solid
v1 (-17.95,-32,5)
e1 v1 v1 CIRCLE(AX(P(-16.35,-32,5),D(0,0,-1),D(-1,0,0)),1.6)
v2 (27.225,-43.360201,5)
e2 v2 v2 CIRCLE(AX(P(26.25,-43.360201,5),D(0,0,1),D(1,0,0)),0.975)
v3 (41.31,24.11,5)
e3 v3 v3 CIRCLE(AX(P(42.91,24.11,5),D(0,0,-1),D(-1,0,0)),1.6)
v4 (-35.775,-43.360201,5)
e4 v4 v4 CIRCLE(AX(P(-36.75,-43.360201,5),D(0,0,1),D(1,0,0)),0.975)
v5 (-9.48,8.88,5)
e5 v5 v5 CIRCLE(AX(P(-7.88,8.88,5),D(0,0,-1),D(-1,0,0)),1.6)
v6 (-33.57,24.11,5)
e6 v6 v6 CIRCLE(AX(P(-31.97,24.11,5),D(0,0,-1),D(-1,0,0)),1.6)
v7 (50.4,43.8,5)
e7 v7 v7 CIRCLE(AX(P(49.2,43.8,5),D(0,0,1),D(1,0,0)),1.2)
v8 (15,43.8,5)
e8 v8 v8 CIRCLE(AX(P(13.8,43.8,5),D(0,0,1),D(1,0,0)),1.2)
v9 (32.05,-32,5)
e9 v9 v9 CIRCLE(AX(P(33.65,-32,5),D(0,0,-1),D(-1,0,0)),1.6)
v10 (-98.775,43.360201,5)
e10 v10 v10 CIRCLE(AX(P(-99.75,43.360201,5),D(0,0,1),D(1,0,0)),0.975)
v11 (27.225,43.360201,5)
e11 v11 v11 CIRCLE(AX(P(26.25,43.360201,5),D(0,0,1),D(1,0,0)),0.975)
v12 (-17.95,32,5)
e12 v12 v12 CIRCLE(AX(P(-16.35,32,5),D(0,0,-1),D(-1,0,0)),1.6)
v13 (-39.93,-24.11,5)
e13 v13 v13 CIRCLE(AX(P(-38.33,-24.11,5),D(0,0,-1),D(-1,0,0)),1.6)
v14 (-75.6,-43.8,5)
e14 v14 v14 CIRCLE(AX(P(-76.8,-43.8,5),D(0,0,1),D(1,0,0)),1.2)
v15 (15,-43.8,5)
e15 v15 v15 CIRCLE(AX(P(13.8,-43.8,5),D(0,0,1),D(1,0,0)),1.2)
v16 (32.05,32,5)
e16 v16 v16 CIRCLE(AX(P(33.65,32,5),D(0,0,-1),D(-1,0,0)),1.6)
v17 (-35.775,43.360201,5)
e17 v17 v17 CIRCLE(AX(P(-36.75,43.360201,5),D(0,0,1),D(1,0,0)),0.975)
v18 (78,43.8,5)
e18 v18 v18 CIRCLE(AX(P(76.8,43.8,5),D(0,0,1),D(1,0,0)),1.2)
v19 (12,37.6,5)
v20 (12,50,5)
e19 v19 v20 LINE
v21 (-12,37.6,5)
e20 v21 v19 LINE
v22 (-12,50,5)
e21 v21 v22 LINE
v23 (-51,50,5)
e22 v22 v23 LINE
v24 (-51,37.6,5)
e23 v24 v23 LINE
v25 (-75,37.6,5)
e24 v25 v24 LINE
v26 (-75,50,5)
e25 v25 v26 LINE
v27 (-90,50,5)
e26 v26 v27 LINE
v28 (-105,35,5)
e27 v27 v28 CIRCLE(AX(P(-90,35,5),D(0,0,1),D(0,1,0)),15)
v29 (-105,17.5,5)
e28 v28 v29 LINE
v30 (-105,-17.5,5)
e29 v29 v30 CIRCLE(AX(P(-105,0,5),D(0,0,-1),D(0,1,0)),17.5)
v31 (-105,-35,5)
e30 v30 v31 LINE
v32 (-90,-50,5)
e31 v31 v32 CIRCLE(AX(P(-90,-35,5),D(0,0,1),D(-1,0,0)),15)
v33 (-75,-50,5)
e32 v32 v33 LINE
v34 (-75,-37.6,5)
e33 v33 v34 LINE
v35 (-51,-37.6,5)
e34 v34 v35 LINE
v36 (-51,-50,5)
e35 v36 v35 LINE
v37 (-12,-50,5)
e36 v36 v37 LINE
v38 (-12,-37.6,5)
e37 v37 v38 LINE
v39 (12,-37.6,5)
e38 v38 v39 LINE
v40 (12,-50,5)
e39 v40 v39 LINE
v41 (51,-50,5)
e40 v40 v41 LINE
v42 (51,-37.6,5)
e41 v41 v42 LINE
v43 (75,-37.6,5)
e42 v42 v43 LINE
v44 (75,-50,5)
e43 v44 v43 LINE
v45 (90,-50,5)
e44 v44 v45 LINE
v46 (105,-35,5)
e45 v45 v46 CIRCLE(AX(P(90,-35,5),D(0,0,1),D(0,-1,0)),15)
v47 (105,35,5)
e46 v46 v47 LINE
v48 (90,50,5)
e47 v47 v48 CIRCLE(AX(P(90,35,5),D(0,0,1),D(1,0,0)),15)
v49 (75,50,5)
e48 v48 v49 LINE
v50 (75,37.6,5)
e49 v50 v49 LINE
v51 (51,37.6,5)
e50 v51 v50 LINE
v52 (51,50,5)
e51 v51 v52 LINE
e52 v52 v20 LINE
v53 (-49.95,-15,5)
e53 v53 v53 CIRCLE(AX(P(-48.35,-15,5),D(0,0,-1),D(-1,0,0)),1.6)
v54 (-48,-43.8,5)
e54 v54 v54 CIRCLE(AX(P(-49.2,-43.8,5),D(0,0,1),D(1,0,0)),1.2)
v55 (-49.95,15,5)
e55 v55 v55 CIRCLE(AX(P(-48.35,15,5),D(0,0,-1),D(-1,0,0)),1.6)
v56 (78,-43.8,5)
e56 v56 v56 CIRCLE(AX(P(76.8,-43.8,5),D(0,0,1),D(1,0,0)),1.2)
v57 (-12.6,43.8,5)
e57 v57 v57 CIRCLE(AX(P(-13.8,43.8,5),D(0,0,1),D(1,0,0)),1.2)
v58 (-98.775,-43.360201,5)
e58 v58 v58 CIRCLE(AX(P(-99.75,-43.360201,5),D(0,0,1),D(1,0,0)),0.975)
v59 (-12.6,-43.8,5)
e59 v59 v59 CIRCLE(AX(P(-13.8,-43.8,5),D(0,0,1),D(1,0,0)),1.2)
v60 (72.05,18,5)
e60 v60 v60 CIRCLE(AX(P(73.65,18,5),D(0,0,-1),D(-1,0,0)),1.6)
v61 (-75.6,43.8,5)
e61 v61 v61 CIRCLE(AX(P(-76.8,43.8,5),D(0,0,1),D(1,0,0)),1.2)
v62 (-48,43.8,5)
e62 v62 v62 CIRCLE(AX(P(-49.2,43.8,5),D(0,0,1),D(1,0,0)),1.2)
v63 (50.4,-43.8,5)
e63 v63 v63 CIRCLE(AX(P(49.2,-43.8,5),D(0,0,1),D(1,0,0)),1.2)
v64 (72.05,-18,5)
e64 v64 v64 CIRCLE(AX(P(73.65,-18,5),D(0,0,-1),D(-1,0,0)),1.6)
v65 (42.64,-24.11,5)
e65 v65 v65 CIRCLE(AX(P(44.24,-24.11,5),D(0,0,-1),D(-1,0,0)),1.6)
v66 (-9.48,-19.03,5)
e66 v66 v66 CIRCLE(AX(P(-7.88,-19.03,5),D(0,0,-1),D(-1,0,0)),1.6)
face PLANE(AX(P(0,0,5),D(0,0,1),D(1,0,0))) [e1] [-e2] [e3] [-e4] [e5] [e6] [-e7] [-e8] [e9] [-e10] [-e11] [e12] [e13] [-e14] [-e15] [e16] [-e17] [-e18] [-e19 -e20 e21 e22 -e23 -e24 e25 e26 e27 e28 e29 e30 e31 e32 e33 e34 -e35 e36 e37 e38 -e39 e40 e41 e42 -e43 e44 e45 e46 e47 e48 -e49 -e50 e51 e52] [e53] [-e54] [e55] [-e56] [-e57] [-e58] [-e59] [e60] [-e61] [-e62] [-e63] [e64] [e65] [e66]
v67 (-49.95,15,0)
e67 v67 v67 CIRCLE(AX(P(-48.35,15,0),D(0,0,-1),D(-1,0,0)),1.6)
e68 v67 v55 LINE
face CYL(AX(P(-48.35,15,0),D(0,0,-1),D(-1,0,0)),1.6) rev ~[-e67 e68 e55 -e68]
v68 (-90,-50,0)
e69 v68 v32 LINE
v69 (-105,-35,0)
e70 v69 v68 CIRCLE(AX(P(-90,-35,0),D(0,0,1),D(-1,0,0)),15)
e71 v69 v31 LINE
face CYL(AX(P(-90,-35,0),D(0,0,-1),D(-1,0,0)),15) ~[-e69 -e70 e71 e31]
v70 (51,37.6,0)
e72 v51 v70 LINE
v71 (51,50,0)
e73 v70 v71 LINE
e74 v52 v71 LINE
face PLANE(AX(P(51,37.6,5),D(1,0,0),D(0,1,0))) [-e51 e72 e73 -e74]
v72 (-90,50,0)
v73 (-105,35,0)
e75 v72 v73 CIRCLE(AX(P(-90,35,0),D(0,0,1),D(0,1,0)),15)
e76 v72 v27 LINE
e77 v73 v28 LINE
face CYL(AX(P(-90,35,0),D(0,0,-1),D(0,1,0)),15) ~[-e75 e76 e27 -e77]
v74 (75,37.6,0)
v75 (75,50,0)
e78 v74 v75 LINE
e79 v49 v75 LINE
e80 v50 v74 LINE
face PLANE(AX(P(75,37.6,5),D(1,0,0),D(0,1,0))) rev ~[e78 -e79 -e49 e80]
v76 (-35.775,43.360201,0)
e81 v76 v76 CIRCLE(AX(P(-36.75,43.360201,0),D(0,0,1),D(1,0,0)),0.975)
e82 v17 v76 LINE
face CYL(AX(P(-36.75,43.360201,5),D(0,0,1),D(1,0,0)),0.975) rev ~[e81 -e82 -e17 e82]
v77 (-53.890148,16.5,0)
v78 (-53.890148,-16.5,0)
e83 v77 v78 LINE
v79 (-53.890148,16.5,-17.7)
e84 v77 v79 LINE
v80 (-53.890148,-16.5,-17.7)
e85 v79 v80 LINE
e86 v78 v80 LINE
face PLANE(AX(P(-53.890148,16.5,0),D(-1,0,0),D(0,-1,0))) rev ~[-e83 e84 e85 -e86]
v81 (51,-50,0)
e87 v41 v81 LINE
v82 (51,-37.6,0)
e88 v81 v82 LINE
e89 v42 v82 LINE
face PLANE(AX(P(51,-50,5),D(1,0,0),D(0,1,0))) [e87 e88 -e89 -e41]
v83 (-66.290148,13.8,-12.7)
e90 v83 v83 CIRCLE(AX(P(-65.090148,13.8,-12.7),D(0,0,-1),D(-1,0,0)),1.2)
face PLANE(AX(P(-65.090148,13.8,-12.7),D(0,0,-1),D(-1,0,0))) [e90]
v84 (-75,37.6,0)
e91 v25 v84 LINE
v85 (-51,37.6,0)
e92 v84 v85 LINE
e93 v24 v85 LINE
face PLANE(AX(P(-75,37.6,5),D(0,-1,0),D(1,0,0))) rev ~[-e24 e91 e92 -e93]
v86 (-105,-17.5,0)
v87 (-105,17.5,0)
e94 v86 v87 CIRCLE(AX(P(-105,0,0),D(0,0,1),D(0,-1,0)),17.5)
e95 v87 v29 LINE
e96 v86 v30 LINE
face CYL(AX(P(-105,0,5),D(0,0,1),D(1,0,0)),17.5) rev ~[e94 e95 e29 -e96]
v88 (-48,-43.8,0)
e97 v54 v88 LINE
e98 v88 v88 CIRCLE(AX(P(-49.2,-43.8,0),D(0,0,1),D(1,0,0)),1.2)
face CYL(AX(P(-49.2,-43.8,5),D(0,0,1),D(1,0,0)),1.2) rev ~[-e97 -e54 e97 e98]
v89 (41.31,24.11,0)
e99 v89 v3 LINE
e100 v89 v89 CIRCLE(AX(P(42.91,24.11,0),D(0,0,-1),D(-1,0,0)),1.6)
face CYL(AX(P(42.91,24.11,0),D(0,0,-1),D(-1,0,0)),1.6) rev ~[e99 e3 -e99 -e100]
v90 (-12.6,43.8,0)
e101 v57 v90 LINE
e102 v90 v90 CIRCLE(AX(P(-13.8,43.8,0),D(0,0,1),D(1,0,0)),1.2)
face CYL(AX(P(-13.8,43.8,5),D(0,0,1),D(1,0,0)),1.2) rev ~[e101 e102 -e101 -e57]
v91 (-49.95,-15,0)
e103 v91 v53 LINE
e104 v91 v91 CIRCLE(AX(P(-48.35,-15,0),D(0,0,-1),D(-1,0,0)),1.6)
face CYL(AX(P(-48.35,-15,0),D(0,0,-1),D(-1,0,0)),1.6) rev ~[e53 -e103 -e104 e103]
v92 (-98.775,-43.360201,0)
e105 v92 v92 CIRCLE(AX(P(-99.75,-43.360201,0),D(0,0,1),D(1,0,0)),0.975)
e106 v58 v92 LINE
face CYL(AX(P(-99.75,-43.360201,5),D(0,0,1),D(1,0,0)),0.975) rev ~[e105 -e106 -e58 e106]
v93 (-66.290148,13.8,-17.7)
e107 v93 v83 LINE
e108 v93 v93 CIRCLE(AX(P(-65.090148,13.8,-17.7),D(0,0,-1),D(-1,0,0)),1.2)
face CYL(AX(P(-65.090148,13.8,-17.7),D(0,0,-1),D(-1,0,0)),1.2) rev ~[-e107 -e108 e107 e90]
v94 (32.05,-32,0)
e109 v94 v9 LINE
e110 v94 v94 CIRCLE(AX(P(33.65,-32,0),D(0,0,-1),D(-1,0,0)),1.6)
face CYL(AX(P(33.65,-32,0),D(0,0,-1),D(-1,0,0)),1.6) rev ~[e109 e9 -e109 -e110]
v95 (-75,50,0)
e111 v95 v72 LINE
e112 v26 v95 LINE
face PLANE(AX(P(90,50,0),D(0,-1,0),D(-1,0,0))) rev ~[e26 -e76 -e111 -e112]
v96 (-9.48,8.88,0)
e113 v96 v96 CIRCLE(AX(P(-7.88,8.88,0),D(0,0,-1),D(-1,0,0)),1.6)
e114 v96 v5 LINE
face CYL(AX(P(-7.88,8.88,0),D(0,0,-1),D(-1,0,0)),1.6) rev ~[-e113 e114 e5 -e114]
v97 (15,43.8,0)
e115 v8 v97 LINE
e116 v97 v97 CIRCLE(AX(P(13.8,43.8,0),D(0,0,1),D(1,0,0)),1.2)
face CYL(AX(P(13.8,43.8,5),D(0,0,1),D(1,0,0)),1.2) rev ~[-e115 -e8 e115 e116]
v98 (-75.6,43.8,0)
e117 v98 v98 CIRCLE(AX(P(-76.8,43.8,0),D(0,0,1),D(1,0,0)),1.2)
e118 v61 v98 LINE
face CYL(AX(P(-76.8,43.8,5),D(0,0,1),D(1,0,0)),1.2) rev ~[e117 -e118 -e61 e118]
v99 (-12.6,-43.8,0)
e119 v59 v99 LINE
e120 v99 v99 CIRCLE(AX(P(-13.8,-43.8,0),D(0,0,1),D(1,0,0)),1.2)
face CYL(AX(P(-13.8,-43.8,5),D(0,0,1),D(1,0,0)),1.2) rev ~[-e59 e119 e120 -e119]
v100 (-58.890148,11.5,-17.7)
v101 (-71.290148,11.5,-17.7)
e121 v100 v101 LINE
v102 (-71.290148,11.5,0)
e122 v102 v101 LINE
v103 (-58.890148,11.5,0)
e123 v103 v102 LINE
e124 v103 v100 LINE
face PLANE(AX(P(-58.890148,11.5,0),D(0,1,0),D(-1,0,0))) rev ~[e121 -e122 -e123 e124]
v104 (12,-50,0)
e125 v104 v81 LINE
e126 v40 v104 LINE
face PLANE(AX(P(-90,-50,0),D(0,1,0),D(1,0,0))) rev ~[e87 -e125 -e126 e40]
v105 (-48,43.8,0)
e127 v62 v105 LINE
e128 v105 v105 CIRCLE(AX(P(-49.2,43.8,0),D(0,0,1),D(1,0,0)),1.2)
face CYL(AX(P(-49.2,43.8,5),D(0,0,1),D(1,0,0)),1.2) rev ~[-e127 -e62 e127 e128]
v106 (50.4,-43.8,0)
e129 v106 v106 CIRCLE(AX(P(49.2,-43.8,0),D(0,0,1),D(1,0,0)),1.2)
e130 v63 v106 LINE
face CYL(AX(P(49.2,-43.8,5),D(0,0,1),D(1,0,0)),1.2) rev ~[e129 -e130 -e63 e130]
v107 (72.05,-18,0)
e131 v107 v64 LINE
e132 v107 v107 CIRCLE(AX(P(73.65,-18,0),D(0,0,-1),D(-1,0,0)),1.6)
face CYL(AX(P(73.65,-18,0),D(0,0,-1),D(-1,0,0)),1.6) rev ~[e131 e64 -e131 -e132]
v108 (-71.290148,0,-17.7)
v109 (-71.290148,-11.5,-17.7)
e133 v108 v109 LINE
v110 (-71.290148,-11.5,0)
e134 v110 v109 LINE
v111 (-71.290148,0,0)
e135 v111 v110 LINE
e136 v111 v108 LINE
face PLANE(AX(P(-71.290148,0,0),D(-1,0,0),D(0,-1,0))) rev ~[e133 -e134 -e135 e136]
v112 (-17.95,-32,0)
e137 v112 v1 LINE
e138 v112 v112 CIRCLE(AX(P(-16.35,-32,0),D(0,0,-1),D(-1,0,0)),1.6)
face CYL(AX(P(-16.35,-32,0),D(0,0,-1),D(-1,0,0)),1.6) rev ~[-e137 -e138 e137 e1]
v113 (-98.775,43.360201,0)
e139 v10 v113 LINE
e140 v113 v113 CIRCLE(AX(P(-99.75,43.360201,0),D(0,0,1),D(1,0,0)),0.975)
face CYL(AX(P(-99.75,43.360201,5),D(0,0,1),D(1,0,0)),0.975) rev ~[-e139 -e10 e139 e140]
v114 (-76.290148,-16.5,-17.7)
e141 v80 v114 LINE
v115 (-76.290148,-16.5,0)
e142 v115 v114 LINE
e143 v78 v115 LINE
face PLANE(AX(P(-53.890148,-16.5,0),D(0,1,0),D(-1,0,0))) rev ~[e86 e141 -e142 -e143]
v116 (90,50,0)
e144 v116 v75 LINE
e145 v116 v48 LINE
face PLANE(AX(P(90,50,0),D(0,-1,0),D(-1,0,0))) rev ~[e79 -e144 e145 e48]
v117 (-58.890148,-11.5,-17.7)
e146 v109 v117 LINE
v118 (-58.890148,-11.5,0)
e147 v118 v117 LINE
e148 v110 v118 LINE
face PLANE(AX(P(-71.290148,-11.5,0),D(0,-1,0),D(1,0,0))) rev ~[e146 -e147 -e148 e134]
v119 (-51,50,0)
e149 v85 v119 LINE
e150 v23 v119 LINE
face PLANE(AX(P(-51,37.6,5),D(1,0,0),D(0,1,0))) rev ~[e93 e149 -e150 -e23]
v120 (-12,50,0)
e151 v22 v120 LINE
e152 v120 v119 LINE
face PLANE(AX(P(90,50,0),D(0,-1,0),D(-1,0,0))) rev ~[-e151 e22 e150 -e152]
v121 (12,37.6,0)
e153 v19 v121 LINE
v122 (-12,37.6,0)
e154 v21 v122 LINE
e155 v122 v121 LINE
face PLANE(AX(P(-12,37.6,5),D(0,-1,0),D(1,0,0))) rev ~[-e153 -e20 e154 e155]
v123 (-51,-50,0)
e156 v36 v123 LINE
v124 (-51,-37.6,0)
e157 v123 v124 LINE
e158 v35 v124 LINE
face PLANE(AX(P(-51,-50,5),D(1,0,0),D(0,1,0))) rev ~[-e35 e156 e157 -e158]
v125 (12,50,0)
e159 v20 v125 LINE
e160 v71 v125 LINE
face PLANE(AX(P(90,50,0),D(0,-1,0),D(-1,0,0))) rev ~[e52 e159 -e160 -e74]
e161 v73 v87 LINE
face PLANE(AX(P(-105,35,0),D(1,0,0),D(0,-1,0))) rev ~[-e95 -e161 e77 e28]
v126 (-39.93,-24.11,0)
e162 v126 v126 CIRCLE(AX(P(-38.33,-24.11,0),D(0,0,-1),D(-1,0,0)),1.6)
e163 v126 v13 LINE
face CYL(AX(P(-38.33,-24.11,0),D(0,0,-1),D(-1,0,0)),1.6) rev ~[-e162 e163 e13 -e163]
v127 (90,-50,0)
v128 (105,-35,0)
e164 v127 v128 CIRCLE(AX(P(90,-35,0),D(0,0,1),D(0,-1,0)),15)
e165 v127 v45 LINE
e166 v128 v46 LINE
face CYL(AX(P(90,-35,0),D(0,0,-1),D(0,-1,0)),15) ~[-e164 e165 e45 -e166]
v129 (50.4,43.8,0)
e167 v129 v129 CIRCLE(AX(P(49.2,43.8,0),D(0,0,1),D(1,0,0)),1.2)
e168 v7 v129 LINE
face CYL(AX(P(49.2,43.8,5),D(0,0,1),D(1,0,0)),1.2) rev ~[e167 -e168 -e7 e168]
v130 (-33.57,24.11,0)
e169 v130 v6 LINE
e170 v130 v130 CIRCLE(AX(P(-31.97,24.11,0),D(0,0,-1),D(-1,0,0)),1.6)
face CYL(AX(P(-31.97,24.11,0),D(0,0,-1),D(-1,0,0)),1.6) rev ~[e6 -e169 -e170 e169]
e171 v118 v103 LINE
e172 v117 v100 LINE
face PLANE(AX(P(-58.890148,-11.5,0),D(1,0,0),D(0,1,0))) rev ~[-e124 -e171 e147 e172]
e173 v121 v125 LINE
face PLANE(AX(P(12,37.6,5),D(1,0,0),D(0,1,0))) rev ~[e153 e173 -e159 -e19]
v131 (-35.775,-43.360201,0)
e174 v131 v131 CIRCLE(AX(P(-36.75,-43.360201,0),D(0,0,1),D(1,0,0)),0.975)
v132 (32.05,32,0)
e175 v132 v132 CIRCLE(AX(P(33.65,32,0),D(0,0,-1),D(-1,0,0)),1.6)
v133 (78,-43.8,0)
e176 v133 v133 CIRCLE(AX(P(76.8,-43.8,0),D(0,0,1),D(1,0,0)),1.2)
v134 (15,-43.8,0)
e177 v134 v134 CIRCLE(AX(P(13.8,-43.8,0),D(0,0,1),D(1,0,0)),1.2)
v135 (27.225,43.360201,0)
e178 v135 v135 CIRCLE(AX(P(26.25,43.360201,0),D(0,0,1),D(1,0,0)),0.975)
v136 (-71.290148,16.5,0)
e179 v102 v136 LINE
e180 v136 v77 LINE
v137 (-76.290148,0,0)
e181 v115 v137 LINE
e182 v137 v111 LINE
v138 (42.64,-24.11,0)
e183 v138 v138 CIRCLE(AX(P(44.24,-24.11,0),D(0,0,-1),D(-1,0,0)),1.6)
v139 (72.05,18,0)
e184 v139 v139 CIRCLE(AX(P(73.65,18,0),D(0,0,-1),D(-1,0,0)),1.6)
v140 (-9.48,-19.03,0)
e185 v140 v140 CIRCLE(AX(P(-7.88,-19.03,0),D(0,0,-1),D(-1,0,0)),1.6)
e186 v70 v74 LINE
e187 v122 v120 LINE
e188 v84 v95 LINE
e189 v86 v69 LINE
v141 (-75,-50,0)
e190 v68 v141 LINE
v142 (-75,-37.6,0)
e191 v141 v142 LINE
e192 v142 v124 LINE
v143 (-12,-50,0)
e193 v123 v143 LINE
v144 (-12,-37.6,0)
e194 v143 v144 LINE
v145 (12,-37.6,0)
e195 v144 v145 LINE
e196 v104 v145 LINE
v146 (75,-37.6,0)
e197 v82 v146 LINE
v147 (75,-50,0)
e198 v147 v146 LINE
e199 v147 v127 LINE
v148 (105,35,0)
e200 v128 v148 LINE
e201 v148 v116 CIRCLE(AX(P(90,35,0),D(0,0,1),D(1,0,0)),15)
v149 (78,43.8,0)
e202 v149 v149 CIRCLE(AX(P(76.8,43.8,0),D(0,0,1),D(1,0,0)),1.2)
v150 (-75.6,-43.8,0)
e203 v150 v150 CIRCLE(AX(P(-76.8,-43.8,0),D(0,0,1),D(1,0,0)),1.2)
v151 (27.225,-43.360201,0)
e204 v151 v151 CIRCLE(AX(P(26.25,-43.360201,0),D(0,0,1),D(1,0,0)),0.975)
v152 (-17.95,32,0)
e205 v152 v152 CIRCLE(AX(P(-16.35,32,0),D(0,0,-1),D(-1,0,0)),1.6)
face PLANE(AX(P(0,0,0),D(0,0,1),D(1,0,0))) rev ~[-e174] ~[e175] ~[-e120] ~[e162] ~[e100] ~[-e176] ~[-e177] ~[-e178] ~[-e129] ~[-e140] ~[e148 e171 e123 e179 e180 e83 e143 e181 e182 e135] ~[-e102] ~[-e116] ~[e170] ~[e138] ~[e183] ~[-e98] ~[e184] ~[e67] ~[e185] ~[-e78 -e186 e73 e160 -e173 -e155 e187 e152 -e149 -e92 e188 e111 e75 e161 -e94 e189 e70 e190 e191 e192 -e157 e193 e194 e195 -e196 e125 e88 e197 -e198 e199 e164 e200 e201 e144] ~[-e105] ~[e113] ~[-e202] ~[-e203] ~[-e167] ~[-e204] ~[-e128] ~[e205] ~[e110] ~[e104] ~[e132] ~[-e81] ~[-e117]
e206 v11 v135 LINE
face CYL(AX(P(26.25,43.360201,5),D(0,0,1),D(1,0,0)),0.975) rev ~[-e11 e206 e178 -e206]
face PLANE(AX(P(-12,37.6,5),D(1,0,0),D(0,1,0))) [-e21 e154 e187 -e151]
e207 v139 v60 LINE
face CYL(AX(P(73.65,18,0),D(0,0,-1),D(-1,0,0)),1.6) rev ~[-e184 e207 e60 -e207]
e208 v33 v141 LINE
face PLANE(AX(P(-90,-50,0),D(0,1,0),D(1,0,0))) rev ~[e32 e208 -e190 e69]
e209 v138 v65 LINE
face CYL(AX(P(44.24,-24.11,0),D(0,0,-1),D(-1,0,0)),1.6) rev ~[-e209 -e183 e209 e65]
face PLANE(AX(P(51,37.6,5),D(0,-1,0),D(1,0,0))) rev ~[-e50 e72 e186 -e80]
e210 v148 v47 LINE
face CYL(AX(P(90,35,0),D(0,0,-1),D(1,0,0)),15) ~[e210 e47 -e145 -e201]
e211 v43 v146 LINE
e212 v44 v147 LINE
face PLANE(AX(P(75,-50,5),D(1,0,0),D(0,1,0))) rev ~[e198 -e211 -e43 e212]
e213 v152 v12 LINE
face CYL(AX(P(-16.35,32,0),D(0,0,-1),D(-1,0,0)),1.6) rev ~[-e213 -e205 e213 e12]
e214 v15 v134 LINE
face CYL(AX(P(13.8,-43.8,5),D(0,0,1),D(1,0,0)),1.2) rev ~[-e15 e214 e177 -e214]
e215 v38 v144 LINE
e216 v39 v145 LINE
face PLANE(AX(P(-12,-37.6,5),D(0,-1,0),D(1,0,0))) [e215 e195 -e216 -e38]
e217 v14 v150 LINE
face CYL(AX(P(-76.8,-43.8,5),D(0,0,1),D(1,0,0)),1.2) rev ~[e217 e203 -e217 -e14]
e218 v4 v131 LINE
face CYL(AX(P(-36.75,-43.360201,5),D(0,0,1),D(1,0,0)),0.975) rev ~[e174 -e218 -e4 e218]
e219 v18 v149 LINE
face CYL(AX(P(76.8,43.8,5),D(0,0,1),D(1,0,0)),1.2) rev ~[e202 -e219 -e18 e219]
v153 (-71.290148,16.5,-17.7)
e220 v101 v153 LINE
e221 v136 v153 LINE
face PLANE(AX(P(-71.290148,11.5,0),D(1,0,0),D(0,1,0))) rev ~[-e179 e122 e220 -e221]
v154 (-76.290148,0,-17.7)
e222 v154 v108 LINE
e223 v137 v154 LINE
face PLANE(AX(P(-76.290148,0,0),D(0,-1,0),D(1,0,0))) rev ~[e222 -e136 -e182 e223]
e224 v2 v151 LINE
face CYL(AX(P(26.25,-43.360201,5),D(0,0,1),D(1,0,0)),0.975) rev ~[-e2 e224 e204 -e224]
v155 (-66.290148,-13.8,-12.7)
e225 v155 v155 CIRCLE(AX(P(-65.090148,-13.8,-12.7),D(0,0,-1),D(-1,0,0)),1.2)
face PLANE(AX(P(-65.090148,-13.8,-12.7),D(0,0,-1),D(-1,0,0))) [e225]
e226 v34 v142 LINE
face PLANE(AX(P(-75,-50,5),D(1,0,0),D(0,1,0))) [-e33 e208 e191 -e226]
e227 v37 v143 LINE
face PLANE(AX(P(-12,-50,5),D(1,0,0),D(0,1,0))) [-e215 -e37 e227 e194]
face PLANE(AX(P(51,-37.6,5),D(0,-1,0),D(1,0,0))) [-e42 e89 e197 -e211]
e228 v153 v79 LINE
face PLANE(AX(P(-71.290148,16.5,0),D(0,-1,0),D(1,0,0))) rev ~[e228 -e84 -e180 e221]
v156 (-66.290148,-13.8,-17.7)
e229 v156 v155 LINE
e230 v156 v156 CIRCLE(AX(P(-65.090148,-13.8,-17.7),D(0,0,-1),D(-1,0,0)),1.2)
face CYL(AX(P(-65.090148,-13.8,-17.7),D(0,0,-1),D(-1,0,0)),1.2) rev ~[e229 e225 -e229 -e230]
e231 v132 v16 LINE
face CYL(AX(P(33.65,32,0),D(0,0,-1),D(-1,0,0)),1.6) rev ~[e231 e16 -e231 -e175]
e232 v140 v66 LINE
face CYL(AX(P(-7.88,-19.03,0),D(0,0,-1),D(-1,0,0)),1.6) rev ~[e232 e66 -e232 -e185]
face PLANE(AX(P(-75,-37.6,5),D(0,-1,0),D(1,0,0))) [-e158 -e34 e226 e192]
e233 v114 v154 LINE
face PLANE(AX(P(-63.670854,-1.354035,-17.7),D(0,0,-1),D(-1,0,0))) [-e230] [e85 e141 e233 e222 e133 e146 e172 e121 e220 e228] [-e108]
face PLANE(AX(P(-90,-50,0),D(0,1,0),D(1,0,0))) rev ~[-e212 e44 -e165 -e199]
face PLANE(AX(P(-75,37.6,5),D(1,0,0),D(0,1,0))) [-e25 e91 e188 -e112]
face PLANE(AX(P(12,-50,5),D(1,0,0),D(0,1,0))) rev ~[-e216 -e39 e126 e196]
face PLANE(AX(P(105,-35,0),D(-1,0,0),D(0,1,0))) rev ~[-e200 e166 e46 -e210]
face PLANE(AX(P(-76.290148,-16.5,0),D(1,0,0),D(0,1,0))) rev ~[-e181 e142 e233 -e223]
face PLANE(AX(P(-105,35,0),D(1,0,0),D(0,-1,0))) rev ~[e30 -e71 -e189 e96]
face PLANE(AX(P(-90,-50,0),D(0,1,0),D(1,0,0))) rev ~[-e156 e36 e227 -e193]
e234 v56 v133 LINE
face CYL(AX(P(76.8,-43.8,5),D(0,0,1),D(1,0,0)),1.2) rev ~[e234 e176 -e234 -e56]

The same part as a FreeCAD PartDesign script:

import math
import FreeCAD as App
import Part
import Sketcher

doc = App.newDocument("Part")
params = doc.addObject("Spreadsheet::Sheet", "Params")
for row, (alias, value) in enumerate([
    ("sketch1_radius", "15 mm"),
    ("sketch1_width", "180 mm"),
    ("sketch1_height", "70 mm"),
    ("pad1_length", "5 mm"),
    ("sketch2_width", "24 mm"),
    ("sketch2_height", "12.4 mm"),
    ("pocket1_length", "5 mm"),
    ("sketch3_diameter", "2.4 mm"),
    ("pocket2_length", "5 mm"),
    ("sketch4_diameter", "1.95 mm"),
    ("pocket3_length", "10 mm"),
    ("sketch5_diameter", "35 mm"),
    ("pocket4_length", "10 mm"),
    ("sketch6_diameter", "3.2 mm"),
    ("pocket5_length", "10 mm"),
    ("sketch7_width", "5 mm"),
    ("sketch7_height", "23 mm"),
    ("sketch7_height2", "33 mm"),
    ("sketch7_width2", "12.4 mm"),
    ("sketch7_width3", "17.4 mm"),
    ("pad2_length", "17.7 mm"),
    ("sketch8_diameter", "2.4 mm"),
    ("pocket6_length", "5 mm"),
], start=1):
    params.set(f"A{row}", alias)
    params.set(f"B{row}", "=" + value)
    params.setAlias(f"B{row}", alias)

body = doc.addObject("PartDesign::Body", "Body")

# Sketch on XY plane
sketch1 = body.newObject("Sketcher::SketchObject", "Sketch")
sketch1.AttachmentSupport = (doc.getObject("XY_Plane"), [""])
sketch1.MapMode = "FlatFace"
sketch1.addGeometry([
    Part.LineSegment(App.Vector(-90, -50, 0), App.Vector(90, -50, 0)),  # 0
    Part.ArcOfCircle(Part.Circle(App.Vector(90, -35, 0), App.Vector(0, 0, 1), 15), math.radians(-90), math.radians(0)),  # 1
    Part.LineSegment(App.Vector(105, -35, 0), App.Vector(105, 35, 0)),  # 2
    Part.ArcOfCircle(Part.Circle(App.Vector(90, 35, 0), App.Vector(0, 0, 1), 15), math.radians(0), math.radians(90)),  # 3
    Part.LineSegment(App.Vector(90, 50, 0), App.Vector(-90, 50, 0)),  # 4
    Part.ArcOfCircle(Part.Circle(App.Vector(-90, 35, 0), App.Vector(0, 0, 1), 15), math.radians(90), math.radians(180)),  # 5
    Part.LineSegment(App.Vector(-105, 35, 0), App.Vector(-105, -35, 0)),  # 6
    Part.ArcOfCircle(Part.Circle(App.Vector(-90, -35, 0), App.Vector(0, 0, 1), 15), math.radians(180), math.radians(270)),  # 7
], False)
sketch1.addConstraint([
    Sketcher.Constraint("Tangent", 0, 2, 1, 1),
    Sketcher.Constraint("Tangent", 1, 2, 2, 1),
    Sketcher.Constraint("Tangent", 2, 2, 3, 1),
    Sketcher.Constraint("Tangent", 3, 2, 4, 1),
    Sketcher.Constraint("Tangent", 4, 2, 5, 1),
    Sketcher.Constraint("Tangent", 5, 2, 6, 1),
    Sketcher.Constraint("Tangent", 6, 2, 7, 1),
    Sketcher.Constraint("Tangent", 7, 2, 0, 1),
    Sketcher.Constraint("Horizontal", 0),
    Sketcher.Constraint("Vertical", 2),
    Sketcher.Constraint("Horizontal", 4),
    Sketcher.Constraint("Vertical", 6),
    Sketcher.Constraint("Equal", 1, 3),
    Sketcher.Constraint("Equal", 3, 5),
    Sketcher.Constraint("Equal", 5, 7),
    Sketcher.Constraint("Symmetric", 1, 3, 5, 3, -1, 1),
    Sketcher.Constraint("Radius", 1, 15.0),
    Sketcher.Constraint("DistanceX", 0, 1, 0, 2, 180.0),
    Sketcher.Constraint("DistanceY", 2, 1, 2, 2, 70.0),
])
sketch1.setExpression("Constraints[16]", "Params.sketch1_radius")
sketch1.setExpression("Constraints[17]", "Params.sketch1_width")
sketch1.setExpression("Constraints[18]", "Params.sketch1_height")
pad1 = body.newObject("PartDesign::Pad", "Pad")
pad1.Profile = sketch1
pad1.setExpression("Length", "Params.pad1_length")

# Sketch on XY plane
sketch2 = body.newObject("Sketcher::SketchObject", "Sketch001")
sketch2.AttachmentSupport = (doc.getObject("XY_Plane"), [""])
sketch2.MapMode = "FlatFace"
sketch2.AttachmentOffset = App.Placement(App.Vector(0, 0, 5), App.Rotation())
sketch2.addGeometry([
    Part.LineSegment(App.Vector(51, -38, 0), App.Vector(51, -50, 0)),  # 0
    Part.LineSegment(App.Vector(51, -50, 0), App.Vector(75, -50, 0)),  # 1
    Part.LineSegment(App.Vector(75, -50, 0), App.Vector(75, -38, 0)),  # 2
    Part.LineSegment(App.Vector(75, -38, 0), App.Vector(51, -38, 0)),  # 3
    Part.LineSegment(App.Vector(-75, 50, 0), App.Vector(-75, 38, 0)),  # 4
    Part.LineSegment(App.Vector(-75, 38, 0), App.Vector(-51, 38, 0)),  # 5
    Part.LineSegment(App.Vector(-51, 38, 0), App.Vector(-51, 50, 0)),  # 6
    Part.LineSegment(App.Vector(-51, 50, 0), App.Vector(-75, 50, 0)),  # 7
    Part.LineSegment(App.Vector(-12, 50, 0), App.Vector(-12, 38, 0)),  # 8
    Part.LineSegment(App.Vector(-12, 38, 0), App.Vector(12, 38, 0)),  # 9
    Part.LineSegment(App.Vector(12, 38, 0), App.Vector(12, 50, 0)),  # 10
    Part.LineSegment(App.Vector(12, 50, 0), App.Vector(-12, 50, 0)),  # 11
    Part.LineSegment(App.Vector(51, 50, 0), App.Vector(51, 38, 0)),  # 12
    Part.LineSegment(App.Vector(51, 38, 0), App.Vector(75, 38, 0)),  # 13
    Part.LineSegment(App.Vector(75, 38, 0), App.Vector(75, 50, 0)),  # 14
    Part.LineSegment(App.Vector(75, 50, 0), App.Vector(51, 50, 0)),  # 15
    Part.LineSegment(App.Vector(-12, -38, 0), App.Vector(-12, -50, 0)),  # 16
    Part.LineSegment(App.Vector(-12, -50, 0), App.Vector(12, -50, 0)),  # 17
    Part.LineSegment(App.Vector(12, -50, 0), App.Vector(12, -38, 0)),  # 18
    Part.LineSegment(App.Vector(12, -38, 0), App.Vector(-12, -38, 0)),  # 19
    Part.LineSegment(App.Vector(-75, -38, 0), App.Vector(-75, -50, 0)),  # 20
    Part.LineSegment(App.Vector(-75, -50, 0), App.Vector(-51, -50, 0)),  # 21
    Part.LineSegment(App.Vector(-51, -50, 0), App.Vector(-51, -38, 0)),  # 22
    Part.LineSegment(App.Vector(-51, -38, 0), App.Vector(-75, -38, 0)),  # 23
], False)
sketch2.addConstraint([
    Sketcher.Constraint("Coincident", 0, 2, 1, 1),
    Sketcher.Constraint("Coincident", 1, 2, 2, 1),
    Sketcher.Constraint("Coincident", 2, 2, 3, 1),
    Sketcher.Constraint("Coincident", 3, 2, 0, 1),
    Sketcher.Constraint("Coincident", 4, 2, 5, 1),
    Sketcher.Constraint("Coincident", 5, 2, 6, 1),
    Sketcher.Constraint("Coincident", 6, 2, 7, 1),
    Sketcher.Constraint("Coincident", 7, 2, 4, 1),
    Sketcher.Constraint("Coincident", 8, 2, 9, 1),
    Sketcher.Constraint("Coincident", 9, 2, 10, 1),
    Sketcher.Constraint("Coincident", 10, 2, 11, 1),
    Sketcher.Constraint("Coincident", 11, 2, 8, 1),
    Sketcher.Constraint("Coincident", 12, 2, 13, 1),
    Sketcher.Constraint("Coincident", 13, 2, 14, 1),
    Sketcher.Constraint("Coincident", 14, 2, 15, 1),
    Sketcher.Constraint("Coincident", 15, 2, 12, 1),
    Sketcher.Constraint("Coincident", 16, 2, 17, 1),
    Sketcher.Constraint("Coincident", 17, 2, 18, 1),
    Sketcher.Constraint("Coincident", 18, 2, 19, 1),
    Sketcher.Constraint("Coincident", 19, 2, 16, 1),
    Sketcher.Constraint("Coincident", 20, 2, 21, 1),
    Sketcher.Constraint("Coincident", 21, 2, 22, 1),
    Sketcher.Constraint("Coincident", 22, 2, 23, 1),
    Sketcher.Constraint("Coincident", 23, 2, 20, 1),
    Sketcher.Constraint("Vertical", 0),
    Sketcher.Constraint("Horizontal", 1),
    Sketcher.Constraint("Vertical", 2),
    Sketcher.Constraint("Horizontal", 3),
    Sketcher.Constraint("Vertical", 4),
    Sketcher.Constraint("Horizontal", 5),
    Sketcher.Constraint("Vertical", 6),
    Sketcher.Constraint("Horizontal", 7),
    Sketcher.Constraint("Vertical", 8),
    Sketcher.Constraint("Horizontal", 9),
    Sketcher.Constraint("Vertical", 10),
    Sketcher.Constraint("Horizontal", 11),
    Sketcher.Constraint("Vertical", 12),
    Sketcher.Constraint("Horizontal", 13),
    Sketcher.Constraint("Vertical", 14),
    Sketcher.Constraint("Horizontal", 15),
    Sketcher.Constraint("Vertical", 16),
    Sketcher.Constraint("Horizontal", 17),
    Sketcher.Constraint("Vertical", 18),
    Sketcher.Constraint("Horizontal", 19),
    Sketcher.Constraint("Vertical", 20),
    Sketcher.Constraint("Horizontal", 21),
    Sketcher.Constraint("Vertical", 22),
    Sketcher.Constraint("Horizontal", 23),
    Sketcher.Constraint("Symmetric", 2, 2, 4, 2, -1, 1),
    Sketcher.Constraint("Symmetric", 0, 2, 6, 2, -1, 1),
    Sketcher.Constraint("Symmetric", 10, 2, 16, 2, -1, 1),
    Sketcher.Constraint("Symmetric", 8, 2, 18, 2, -1, 1),
    Sketcher.Constraint("Symmetric", 14, 2, 20, 2, -1, 1),
    Sketcher.Constraint("Symmetric", 12, 2, 22, 2, -1, 1),
    Sketcher.Constraint("Symmetric", 5, 2, 12, 2, -2),
    Sketcher.Constraint("Symmetric", 7, 2, 14, 2, -2),
    Sketcher.Constraint("Horizontal", 5, 2, 8, 2),
    Sketcher.Constraint("Horizontal", 7, 2, 10, 2),
    Sketcher.Constraint("Vertical", 11, 2, 16, 2),
    Sketcher.Constraint("Equal", 7, 9),
    Sketcher.Constraint("DistanceX", 1, 1, 1, 2, 24.0),
    Sketcher.Constraint("DistanceY", 0, 2, 0, 1, 12.4),
    Sketcher.Constraint("DistanceX", -1, 1, 0, 2, 51.0),
    Sketcher.Constraint("DistanceY", 0, 2, -1, 1, 50.0),
])
sketch2.setExpression("Constraints[60]", "Params.sketch2_width")
sketch2.setExpression("Constraints[61]", "Params.sketch2_height")
pocket1 = body.newObject("PartDesign::Pocket", "Pocket")
pocket1.Profile = sketch2
pocket1.setExpression("Length", "Params.pocket1_length")

# Sketch on XY plane
sketch3 = body.newObject("Sketcher::SketchObject", "Sketch002")
sketch3.AttachmentSupport = (doc.getObject("XY_Plane"), [""])
sketch3.MapMode = "FlatFace"
sketch3.AttachmentOffset = App.Placement(App.Vector(0, 0, 5), App.Rotation())
sketch3.addGeometry([
    Part.Circle(App.Vector(-76.8, 43.8, 0), App.Vector(0, 0, 1), 1.2),  # 0
    Part.Circle(App.Vector(-49.2, 43.8, 0), App.Vector(0, 0, 1), 1.2),  # 1
    Part.Circle(App.Vector(-13.8, 43.8, 0), App.Vector(0, 0, 1), 1.2),  # 2
    Part.Circle(App.Vector(13.8, 43.8, 0), App.Vector(0, 0, 1), 1.2),  # 3
    Part.Circle(App.Vector(49.2, 43.8, 0), App.Vector(0, 0, 1), 1.2),  # 4
    Part.Circle(App.Vector(76.8, 43.8, 0), App.Vector(0, 0, 1), 1.2),  # 5
    Part.Circle(App.Vector(-76.8, -43.8, 0), App.Vector(0, 0, 1), 1.2),  # 6
    Part.Circle(App.Vector(-49.2, -43.8, 0), App.Vector(0, 0, 1), 1.2),  # 7
    Part.Circle(App.Vector(-13.8, -43.8, 0), App.Vector(0, 0, 1), 1.2),  # 8
    Part.Circle(App.Vector(13.8, -43.8, 0), App.Vector(0, 0, 1), 1.2),  # 9
    Part.Circle(App.Vector(49.2, -43.8, 0), App.Vector(0, 0, 1), 1.2),  # 10
    Part.Circle(App.Vector(76.8, -43.8, 0), App.Vector(0, 0, 1), 1.2),  # 11
], False)
sketch3.addConstraint([
    Sketcher.Constraint("Equal", 0, 1),
    Sketcher.Constraint("Equal", 1, 2),
    Sketcher.Constraint("Equal", 2, 3),
    Sketcher.Constraint("Equal", 3, 4),
    Sketcher.Constraint("Equal", 4, 5),
    Sketcher.Constraint("Equal", 5, 6),
    Sketcher.Constraint("Equal", 6, 7),
    Sketcher.Constraint("Equal", 7, 8),
    Sketcher.Constraint("Equal", 8, 9),
    Sketcher.Constraint("Equal", 9, 10),
    Sketcher.Constraint("Equal", 10, 11),
    Sketcher.Constraint("Symmetric", 5, 3, 6, 3, -1, 1),
    Sketcher.Constraint("Symmetric", 4, 3, 7, 3, -1, 1),
    Sketcher.Constraint("Symmetric", 3, 3, 8, 3, -1, 1),
    Sketcher.Constraint("Symmetric", 2, 3, 9, 3, -1, 1),
    Sketcher.Constraint("Symmetric", 1, 3, 10, 3, -1, 1),
    Sketcher.Constraint("Symmetric", 0, 3, 11, 3, -1, 1),
    Sketcher.Constraint("Symmetric", 2, 3, 3, 3, -2),
    Sketcher.Constraint("Symmetric", 1, 3, 4, 3, -2),
    Sketcher.Constraint("Symmetric", 0, 3, 5, 3, -2),
    Sketcher.Constraint("Horizontal", 0, 3, 1, 3),
    Sketcher.Constraint("Horizontal", 1, 3, 2, 3),
    Sketcher.Constraint("Diameter", 0, 2.4),
    Sketcher.Constraint("DistanceX", 0, 3, 2, 3, 63.0),
    Sketcher.Constraint("DistanceX", 1, 3, 3, 3, 63.0),
    Sketcher.Constraint("DistanceX", 0, 3, -1, 1, 76.8),
    Sketcher.Constraint("DistanceY", -1, 1, 0, 3, 43.8),
])
sketch3.setExpression("Constraints[22]", "Params.sketch3_diameter")
pocket2 = body.newObject("PartDesign::Pocket", "Pocket001")
pocket2.Profile = sketch3
pocket2.setExpression("Length", "Params.pocket2_length")

# Sketch on XY plane
sketch4 = body.newObject("Sketcher::SketchObject", "Sketch003")
sketch4.AttachmentSupport = (doc.getObject("XY_Plane"), [""])
sketch4.MapMode = "FlatFace"
sketch4.AttachmentOffset = App.Placement(App.Vector(0, 0, 5), App.Rotation())
sketch4.addGeometry([
    Part.Circle(App.Vector(-36.8, 43.4, 0), App.Vector(0, 0, 1), 1),  # 0
    Part.Circle(App.Vector(26.2, 43.4, 0), App.Vector(0, 0, 1), 1),  # 1
    Part.Circle(App.Vector(26.2, -43.4, 0), App.Vector(0, 0, 1), 1),  # 2
    Part.Circle(App.Vector(-36.8, -43.4, 0), App.Vector(0, 0, 1), 1),  # 3
    Part.Circle(App.Vector(-99.8, 43.4, 0), App.Vector(0, 0, 1), 1),  # 4
    Part.Circle(App.Vector(-99.8, -43.4, 0), App.Vector(0, 0, 1), 1),  # 5
], False)
sketch4.addConstraint([
    Sketcher.Constraint("Equal", 0, 1),
    Sketcher.Constraint("Equal", 1, 2),
    Sketcher.Constraint("Equal", 2, 3),
    Sketcher.Constraint("Equal", 3, 4),
    Sketcher.Constraint("Equal", 4, 5),
    Sketcher.Constraint("Symmetric", 1, 3, 2, 3, -1),
    Sketcher.Constraint("Symmetric", 0, 3, 3, 3, -1),
    Sketcher.Constraint("Symmetric", 4, 3, 5, 3, -1),
    Sketcher.Constraint("Horizontal", 0, 3, 1, 3),
    Sketcher.Constraint("Horizontal", 1, 3, 4, 3),
    Sketcher.Constraint("Diameter", 0, 1.95),
    Sketcher.Constraint("DistanceX", 0, 3, 1, 3, 63.0),
    Sketcher.Constraint("DistanceX", 4, 3, 0, 3, 63.0),
    Sketcher.Constraint("DistanceX", 0, 3, -1, 1, 36.75),
    Sketcher.Constraint("DistanceY", -1, 1, 0, 3, 43.360201),
])
sketch4.setExpression("Constraints[10]", "Params.sketch4_diameter")
pocket3 = body.newObject("PartDesign::Pocket", "Pocket002")
pocket3.Profile = sketch4
pocket3.setExpression("Length", "Params.pocket3_length")

# Sketch on XY plane
sketch5 = body.newObject("Sketcher::SketchObject", "Sketch004")
sketch5.AttachmentSupport = (doc.getObject("XY_Plane"), [""])
sketch5.MapMode = "FlatFace"
sketch5.AttachmentOffset = App.Placement(App.Vector(0, 0, 5), App.Rotation())
sketch5.addGeometry(Part.Circle(App.Vector(-105, 0, 0), App.Vector(0, 0, 1), 18), False)
sketch5.addConstraint([
    Sketcher.Constraint("PointOnObject", 0, 3, -1),
    Sketcher.Constraint("Diameter", 0, 35.0),
    Sketcher.Constraint("DistanceX", 0, 3, -1, 1, 105.0),
])
sketch5.setExpression("Constraints[1]", "Params.sketch5_diameter")
pocket4 = body.newObject("PartDesign::Pocket", "Pocket003")
pocket4.Profile = sketch5
pocket4.setExpression("Length", "Params.pocket4_length")

# Sketch on XY plane
sketch6 = body.newObject("Sketcher::SketchObject", "Sketch005")
sketch6.AttachmentSupport = (doc.getObject("XY_Plane"), [""])
sketch6.MapMode = "FlatFace"
sketch6.addGeometry([
    Part.Circle(App.Vector(-32, 24.1, 0), App.Vector(0, 0, 1), 1.6),  # 0
    Part.Circle(App.Vector(-38.3, -24.1, 0), App.Vector(0, 0, 1), 1.6),  # 1
    Part.Circle(App.Vector(-7.9, 8.9, 0), App.Vector(0, 0, 1), 1.6),  # 2
    Part.Circle(App.Vector(-7.9, -19, 0), App.Vector(0, 0, 1), 1.6),  # 3
    Part.Circle(App.Vector(42.9, 24.1, 0), App.Vector(0, 0, 1), 1.6),  # 4
    Part.Circle(App.Vector(44.2, -24.1, 0), App.Vector(0, 0, 1), 1.6),  # 5
    Part.Circle(App.Vector(73.7, 18, 0), App.Vector(0, 0, 1), 1.6),  # 6
    Part.Circle(App.Vector(-48.4, 15, 0), App.Vector(0, 0, 1), 1.6),  # 7
    Part.Circle(App.Vector(73.7, -18, 0), App.Vector(0, 0, 1), 1.6),  # 8
    Part.Circle(App.Vector(-48.4, -15, 0), App.Vector(0, 0, 1), 1.6),  # 9
    Part.Circle(App.Vector(33.6, 32, 0), App.Vector(0, 0, 1), 1.6),  # 10
    Part.Circle(App.Vector(-16.4, 32, 0), App.Vector(0, 0, 1), 1.6),  # 11
    Part.Circle(App.Vector(33.6, -32, 0), App.Vector(0, 0, 1), 1.6),  # 12
    Part.Circle(App.Vector(-16.4, -32, 0), App.Vector(0, 0, 1), 1.6),  # 13
], False)
sketch6.addConstraint([
    Sketcher.Constraint("Equal", 0, 1),
    Sketcher.Constraint("Equal", 1, 2),
    Sketcher.Constraint("Equal", 2, 3),
    Sketcher.Constraint("Equal", 3, 4),
    Sketcher.Constraint("Equal", 4, 5),
    Sketcher.Constraint("Equal", 5, 6),
    Sketcher.Constraint("Equal", 6, 7),
    Sketcher.Constraint("Equal", 7, 8),
    Sketcher.Constraint("Equal", 8, 9),
    Sketcher.Constraint("Equal", 9, 10),
    Sketcher.Constraint("Equal", 10, 11),
    Sketcher.Constraint("Equal", 11, 12),
    Sketcher.Constraint("Equal", 12, 13),
    Sketcher.Constraint("Symmetric", 6, 3, 8, 3, -1),
    Sketcher.Constraint("Symmetric", 7, 3, 9, 3, -1),
    Sketcher.Constraint("Symmetric", 10, 3, 12, 3, -1),
    Sketcher.Constraint("Symmetric", 11, 3, 13, 3, -1),
    Sketcher.Constraint("Horizontal", 0, 3, 4, 3),
    Sketcher.Constraint("Horizontal", 1, 3, 5, 3),
    Sketcher.Constraint("Horizontal", 10, 3, 11, 3),
    Sketcher.Constraint("Vertical", 2, 3, 3, 3),
    Sketcher.Constraint("Diameter", 0, 3.2),
    Sketcher.Constraint("DistanceY", -1, 1, 6, 3, 18.0),
    Sketcher.Constraint("DistanceY", -1, 1, 7, 3, 15.0),
    Sketcher.Constraint("DistanceY", -1, 1, 10, 3, 32.0),
    Sketcher.Constraint("DistanceX", 10, 3, 6, 3, 40.0),
    Sketcher.Constraint("DistanceX", 7, 3, 11, 3, 32.0),
    Sketcher.Constraint("DistanceX", 11, 3, 10, 3, 50.0),
    Sketcher.Constraint("DistanceX", 0, 3, -1, 1, 31.97),
    Sketcher.Constraint("DistanceY", -1, 1, 0, 3, 24.11),
    Sketcher.Constraint("DistanceX", 1, 3, -1, 1, 38.33),
    Sketcher.Constraint("DistanceY", 1, 3, -1, 1, 24.11),
    Sketcher.Constraint("DistanceX", 2, 3, -1, 1, 7.88),
    Sketcher.Constraint("DistanceY", -1, 1, 2, 3, 8.88),
    Sketcher.Constraint("DistanceY", 3, 3, -1, 1, 19.03),
    Sketcher.Constraint("DistanceX", -1, 1, 4, 3, 42.91),
    Sketcher.Constraint("DistanceX", -1, 1, 5, 3, 44.24),
    Sketcher.Constraint("DistanceX", -1, 1, 6, 3, 73.65),
])
sketch6.setExpression("Constraints[21]", "Params.sketch6_diameter")
pocket5 = body.newObject("PartDesign::Pocket", "Pocket004")
pocket5.Profile = sketch6
pocket5.setExpression("Length", "Params.pocket5_length")
pocket5.Reversed = True

# Sketch on XY plane
sketch7 = body.newObject("Sketcher::SketchObject", "Sketch006")
sketch7.AttachmentSupport = (doc.getObject("XY_Plane"), [""])
sketch7.MapMode = "FlatFace"
sketch7.addGeometry([
    Part.LineSegment(App.Vector(-71, 0, 0), App.Vector(-71, -12, 0)),  # 0
    Part.LineSegment(App.Vector(-71, -12, 0), App.Vector(-59, -12, 0)),  # 1
    Part.LineSegment(App.Vector(-59, -12, 0), App.Vector(-59, 12, 0)),  # 2
    Part.LineSegment(App.Vector(-59, 12, 0), App.Vector(-71, 12, 0)),  # 3
    Part.LineSegment(App.Vector(-71, 12, 0), App.Vector(-71, 16, 0)),  # 4
    Part.LineSegment(App.Vector(-71, 16, 0), App.Vector(-54, 16, 0)),  # 5
    Part.LineSegment(App.Vector(-54, 16, 0), App.Vector(-54, -16, 0)),  # 6
    Part.LineSegment(App.Vector(-54, -16, 0), App.Vector(-76, -16, 0)),  # 7
    Part.LineSegment(App.Vector(-76, -16, 0), App.Vector(-76, 0, 0)),  # 8
    Part.LineSegment(App.Vector(-76, 0, 0), App.Vector(-71, 0, 0)),  # 9
], False)
sketch7.addConstraint([
    Sketcher.Constraint("Coincident", 0, 2, 1, 1),
    Sketcher.Constraint("Coincident", 1, 2, 2, 1),
    Sketcher.Constraint("Coincident", 2, 2, 3, 1),
    Sketcher.Constraint("Coincident", 3, 2, 4, 1),
    Sketcher.Constraint("Coincident", 4, 2, 5, 1),
    Sketcher.Constraint("Coincident", 5, 2, 6, 1),
    Sketcher.Constraint("Coincident", 6, 2, 7, 1),
    Sketcher.Constraint("Coincident", 7, 2, 8, 1),
    Sketcher.Constraint("Coincident", 8, 2, 9, 1),
    Sketcher.Constraint("Coincident", 9, 2, 0, 1),
    Sketcher.Constraint("Vertical", 0),
    Sketcher.Constraint("Horizontal", 1),
    Sketcher.Constraint("Vertical", 2),
    Sketcher.Constraint("Horizontal", 3),
    Sketcher.Constraint("Vertical", 4),
    Sketcher.Constraint("Horizontal", 5),
    Sketcher.Constraint("Vertical", 6),
    Sketcher.Constraint("Horizontal", 7),
    Sketcher.Constraint("Vertical", 8),
    Sketcher.Constraint("Horizontal", 9),
    Sketcher.Constraint("Symmetric", 0, 2, 3, 2, -1),
    Sketcher.Constraint("PointOnObject", 8, 2, -1),
    Sketcher.Constraint("Equal", 9, 4),
    Sketcher.Constraint("DistanceX", 9, 1, 9, 2, 5.0),
    Sketcher.Constraint("DistanceY", 2, 1, 2, 2, 23.0),
    Sketcher.Constraint("DistanceY", 6, 2, 6, 1, 33.0),
    Sketcher.Constraint("DistanceX", 1, 1, 1, 2, 12.4),
    Sketcher.Constraint("DistanceX", 5, 1, 5, 2, 17.4),
    Sketcher.Constraint("DistanceX", 0, 2, -1, 1, 71.290148),
])
sketch7.setExpression("Constraints[23]", "Params.sketch7_width")
sketch7.setExpression("Constraints[24]", "Params.sketch7_height")
sketch7.setExpression("Constraints[25]", "Params.sketch7_height2")
sketch7.setExpression("Constraints[26]", "Params.sketch7_width2")
sketch7.setExpression("Constraints[27]", "Params.sketch7_width3")
pad2 = body.newObject("PartDesign::Pad", "Pad001")
pad2.Profile = sketch7
pad2.setExpression("Length", "Params.pad2_length")
pad2.Reversed = True

# Sketch on XY plane
sketch8 = body.newObject("Sketcher::SketchObject", "Sketch007")
sketch8.AttachmentSupport = (doc.getObject("XY_Plane"), [""])
sketch8.MapMode = "FlatFace"
sketch8.AttachmentOffset = App.Placement(App.Vector(0, 0, -17.7), App.Rotation())
sketch8.addGeometry([
    Part.Circle(App.Vector(-65.1, -13.8, 0), App.Vector(0, 0, 1), 1.2),
    Part.Circle(App.Vector(-65.1, 13.8, 0), App.Vector(0, 0, 1), 1.2),
], False)
sketch8.addConstraint([
    Sketcher.Constraint("Equal", 0, 1),
    Sketcher.Constraint("Symmetric", 0, 3, 1, 3, -1),
    Sketcher.Constraint("Diameter", 0, 2.4),
    Sketcher.Constraint("DistanceY", 0, 3, -1, 1, 13.8),
    Sketcher.Constraint("DistanceX", 0, 3, -1, 1, 65.090148),
])
sketch8.setExpression("Constraints[2]", "Params.sketch8_diameter")
pocket6 = body.newObject("PartDesign::Pocket", "Pocket005")
pocket6.Profile = sketch8
pocket6.setExpression("Length", "Params.pocket6_length")
pocket6.Reversed = True

doc.recompute()
